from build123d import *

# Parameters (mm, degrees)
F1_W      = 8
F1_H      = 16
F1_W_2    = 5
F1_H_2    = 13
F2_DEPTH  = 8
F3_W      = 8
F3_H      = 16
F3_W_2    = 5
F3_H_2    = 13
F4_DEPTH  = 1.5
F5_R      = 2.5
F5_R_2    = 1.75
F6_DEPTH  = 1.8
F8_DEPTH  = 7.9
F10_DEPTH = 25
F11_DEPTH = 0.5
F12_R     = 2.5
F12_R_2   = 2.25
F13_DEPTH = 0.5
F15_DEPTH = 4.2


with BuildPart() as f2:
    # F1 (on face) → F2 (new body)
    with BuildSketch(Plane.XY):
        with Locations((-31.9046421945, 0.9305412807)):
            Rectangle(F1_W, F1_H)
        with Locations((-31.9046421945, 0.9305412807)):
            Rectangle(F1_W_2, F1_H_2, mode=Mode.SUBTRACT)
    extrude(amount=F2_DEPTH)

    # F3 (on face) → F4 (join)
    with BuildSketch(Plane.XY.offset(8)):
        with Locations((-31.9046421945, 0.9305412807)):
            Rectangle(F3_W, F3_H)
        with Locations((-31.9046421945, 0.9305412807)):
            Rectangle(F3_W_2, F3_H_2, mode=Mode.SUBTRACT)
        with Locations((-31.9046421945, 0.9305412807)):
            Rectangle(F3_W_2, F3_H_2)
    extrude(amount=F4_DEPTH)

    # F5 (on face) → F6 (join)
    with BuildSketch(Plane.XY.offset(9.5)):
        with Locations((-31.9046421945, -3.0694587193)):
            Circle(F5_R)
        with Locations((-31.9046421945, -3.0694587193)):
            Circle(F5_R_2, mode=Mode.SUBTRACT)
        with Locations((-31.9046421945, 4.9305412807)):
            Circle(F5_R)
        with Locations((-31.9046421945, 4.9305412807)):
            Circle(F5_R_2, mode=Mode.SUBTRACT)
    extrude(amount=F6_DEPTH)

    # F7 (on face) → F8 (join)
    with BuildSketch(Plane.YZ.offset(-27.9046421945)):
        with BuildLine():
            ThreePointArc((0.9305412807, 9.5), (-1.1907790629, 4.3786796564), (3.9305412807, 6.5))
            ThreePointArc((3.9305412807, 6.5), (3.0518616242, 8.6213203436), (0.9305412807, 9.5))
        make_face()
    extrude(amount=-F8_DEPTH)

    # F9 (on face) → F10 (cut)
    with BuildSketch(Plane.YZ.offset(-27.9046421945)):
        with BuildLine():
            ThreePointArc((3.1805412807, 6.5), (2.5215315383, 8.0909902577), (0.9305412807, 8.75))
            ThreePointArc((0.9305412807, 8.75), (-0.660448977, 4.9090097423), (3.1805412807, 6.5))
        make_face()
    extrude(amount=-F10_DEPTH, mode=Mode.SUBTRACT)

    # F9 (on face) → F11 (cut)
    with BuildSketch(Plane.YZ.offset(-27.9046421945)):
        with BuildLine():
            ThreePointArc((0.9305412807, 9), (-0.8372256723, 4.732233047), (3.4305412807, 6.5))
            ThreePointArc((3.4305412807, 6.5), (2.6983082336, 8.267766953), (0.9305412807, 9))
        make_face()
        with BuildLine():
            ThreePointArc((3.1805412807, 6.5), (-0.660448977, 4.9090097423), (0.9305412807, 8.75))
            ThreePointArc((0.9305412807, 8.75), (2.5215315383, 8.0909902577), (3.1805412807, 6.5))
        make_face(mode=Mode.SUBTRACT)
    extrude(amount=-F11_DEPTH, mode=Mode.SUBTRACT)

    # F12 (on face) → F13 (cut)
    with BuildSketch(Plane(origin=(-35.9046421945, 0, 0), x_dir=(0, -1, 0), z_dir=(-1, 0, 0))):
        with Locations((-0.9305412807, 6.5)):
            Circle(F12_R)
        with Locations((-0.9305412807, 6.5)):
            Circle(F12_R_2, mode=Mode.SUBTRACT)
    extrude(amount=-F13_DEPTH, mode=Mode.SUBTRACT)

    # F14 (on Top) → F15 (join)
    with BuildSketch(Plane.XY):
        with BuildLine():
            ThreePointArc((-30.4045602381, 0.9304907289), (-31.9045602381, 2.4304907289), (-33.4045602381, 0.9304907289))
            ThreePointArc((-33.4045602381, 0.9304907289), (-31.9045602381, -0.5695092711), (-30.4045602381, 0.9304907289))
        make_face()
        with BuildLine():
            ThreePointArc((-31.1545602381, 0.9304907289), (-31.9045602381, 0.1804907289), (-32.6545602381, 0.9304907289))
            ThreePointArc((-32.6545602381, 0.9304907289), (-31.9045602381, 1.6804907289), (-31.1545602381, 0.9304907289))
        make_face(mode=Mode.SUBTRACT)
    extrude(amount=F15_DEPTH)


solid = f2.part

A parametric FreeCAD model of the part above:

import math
import FreeCAD as App
import Part
import Sketcher
from FreeCAD import Vector


def add_polygon(sketch, points):
    """Adds a closed chain of lines whose ends are joined by coincident constraints."""
    first, n = sketch.GeometryCount, len(points)
    for a, b in zip(points, points[1:] + points[:1]):
        sketch.addGeometry(Part.LineSegment(App.Vector(*a, 0), App.Vector(*b, 0)), False)
    for i in range(n):
        sketch.addConstraint(Sketcher.Constraint("Coincident", first + i, 2, first + (i + 1) % n, 1))

doc = App.newDocument("Part")
body = doc.addObject("PartDesign::Body", "Body")

sketch1 = body.newObject("Sketcher::SketchObject", "Sketch")
sketch1.AttachmentSupport = (doc.getObject("XY_Plane"), [""])
sketch1.MapMode = "FlatFace"
add_polygon(sketch1, [(-35.9, 8.9), (-35.9, -7.1), (-27.9, -7.1), (-27.9, 8.9)])
add_polygon(sketch1, [(-29.4, -5.6), (-34.4, -5.6), (-34.4, 7.4), (-29.4, 7.4)])
sketch1.addConstraint([
    Sketcher.Constraint("Vertical", 0),
    Sketcher.Constraint("Horizontal", 1),
    Sketcher.Constraint("Vertical", 2),
    Sketcher.Constraint("Horizontal", 3),
    Sketcher.Constraint("Horizontal", 4),
    Sketcher.Constraint("Vertical", 5),
    Sketcher.Constraint("Horizontal", 6),
    Sketcher.Constraint("Vertical", 7),
    Sketcher.Constraint("DistanceX", 1, 1, 1, 2, 8.0),
    Sketcher.Constraint("DistanceX", 4, 2, 4, 1, 5.0),
    Sketcher.Constraint("DistanceY", 0, 2, 0, 1, 16.0),
    Sketcher.Constraint("DistanceY", 5, 1, 5, 2, 13.0),
    Sketcher.Constraint("DistanceX", 0, 2, 4, 2, 1.5),
    Sketcher.Constraint("DistanceY", 0, 2, 4, 2, 1.5),
    Sketcher.Constraint("DistanceY", 0, 2, -1, 1, 7.069459),
    Sketcher.Constraint("DistanceX", 0, 2, -1, 1, 35.904642),
])
pad1 = body.newObject("PartDesign::Pad", "Pad")
pad1.Profile = sketch1
pad1.Length = 8

sketch2 = body.newObject("Sketcher::SketchObject", "Sketch001")
sketch2.AttachmentSupport = (doc.getObject("XY_Plane"), [""])
sketch2.MapMode = "FlatFace"
sketch2.AttachmentOffset = App.Placement(Vector(0, 0, 8), App.Rotation())
add_polygon(sketch2, [(-36, 9), (-36, -7), (-28, -7), (-28, 9)])
sketch2.addConstraint([
    Sketcher.Constraint("Vertical", 0),
    Sketcher.Constraint("Horizontal", 1),
    Sketcher.Constraint("Vertical", 2),
    Sketcher.Constraint("Horizontal", 3),
    Sketcher.Constraint("DistanceX", 1, 1, 1, 2, 8.0),
    Sketcher.Constraint("DistanceY", 0, 2, 0, 1, 16.0),
    Sketcher.Constraint("DistanceY", 0, 2, -1, 1, 7.069459),
    Sketcher.Constraint("DistanceX", 0, 2, -1, 1, 35.904642),
])
pad2 = body.newObject("PartDesign::Pad", "Pad001")
pad2.Profile = sketch2
pad2.Length = 1.5

sketch3 = body.newObject("Sketcher::SketchObject", "Sketch002")
sketch3.AttachmentSupport = (doc.getObject("XY_Plane"), [""])
sketch3.MapMode = "FlatFace"
sketch3.AttachmentOffset = App.Placement(Vector(0, 0, 9.5), App.Rotation())
sketch3.addGeometry([
    Part.Circle(Vector(-31.9, -3.1, 0), Vector(0, 0, 1), 2.5),
    Part.Circle(Vector(-31.9, -3.1, 0), Vector(0, 0, 1), 1.8),
    Part.Circle(Vector(-31.9, 4.9, 0), Vector(0, 0, 1), 2.5),
    Part.Circle(Vector(-31.9, 4.9, 0), Vector(0, 0, 1), 1.8),
], False)
sketch3.addConstraint([
    Sketcher.Constraint("Coincident", 1, 3, 0, 3),
    Sketcher.Constraint("Coincident", 3, 3, 2, 3),
    Sketcher.Constraint("Equal", 0, 2),
    Sketcher.Constraint("Equal", 1, 3),
    Sketcher.Constraint("Vertical", 1, 3, 2, 3),
    Sketcher.Constraint("Diameter", 0, 5.0),
    Sketcher.Constraint("Diameter", 1, 3.5),
    Sketcher.Constraint("DistanceY", 0, 3, 2, 3, 8.0),
    Sketcher.Constraint("DistanceY", 0, 3, -1, 1, 3.069459),
    Sketcher.Constraint("DistanceX", 0, 3, -1, 1, 31.904642),
])
pad3 = body.newObject("PartDesign::Pad", "Pad002")
pad3.Profile = sketch3
pad3.Length = 1.8

sketch4 = body.newObject("Sketcher::SketchObject", "Sketch003")
sketch4.AttachmentSupport = (doc.getObject("YZ_Plane"), [""])
sketch4.MapMode = "FlatFace"
sketch4.AttachmentOffset = App.Placement(Vector(0, 0, -27.904642), App.Rotation())
sketch4.addGeometry([
    Part.ArcOfCircle(Part.Circle(Vector(0.9, 6.5, 0), Vector(0, 0, 1), 3), math.radians(90), math.radians(360)),
    Part.ArcOfCircle(Part.Circle(Vector(0.9, 6.5, 0), Vector(0, 0, 1), 3), math.radians(0), math.radians(90)),
], False)
sketch4.addConstraint([
    Sketcher.Constraint("Tangent", 0, 1, 1, 2),
    Sketcher.Constraint("Coincident", 1, 1, 0, 2),
    Sketcher.Constraint("Horizontal", 0, 3, 1, 1),
    Sketcher.Constraint("Vertical", 1, 3, 0, 1),
    Sketcher.Constraint("Radius", 0, 3.0),
    Sketcher.Constraint("DistanceY", -1, 1, 0, 3, 6.5),
    Sketcher.Constraint("DistanceX", -1, 1, 0, 3, 0.930541),
])
pad4 = body.newObject("PartDesign::Pad", "Pad003")
pad4.Profile = sketch4
pad4.Length = 7.9
pad4.Reversed = True

sketch5 = body.newObject("Sketcher::SketchObject", "Sketch004")
sketch5.AttachmentSupport = (doc.getObject("YZ_Plane"), [""])
sketch5.MapMode = "FlatFace"
sketch5.AttachmentOffset = App.Placement(Vector(0, 0, -27.904642), App.Rotation())
sketch5.addGeometry([
    Part.ArcOfCircle(Part.Circle(Vector(0.9, 6.5, 0), Vector(0, 0, 1), 2.2), math.radians(0), math.radians(90)),
    Part.ArcOfCircle(Part.Circle(Vector(0.9, 6.5, 0), Vector(0, 0, 1), 2.2), math.radians(90), math.radians(360)),
], False)
sketch5.addConstraint([
    Sketcher.Constraint("Tangent", 0, 1, 1, 2),
    Sketcher.Constraint("Coincident", 1, 1, 0, 2),
    Sketcher.Constraint("Horizontal", 1, 3, 0, 1),
    Sketcher.Constraint("Vertical", 0, 3, 1, 1),
    Sketcher.Constraint("Radius", 0, 2.25),
    Sketcher.Constraint("DistanceY", -1, 1, 0, 3, 6.5),
    Sketcher.Constraint("DistanceX", -1, 1, 0, 3, 0.930541),
])
pocket1 = body.newObject("PartDesign::Pocket", "Pocket")
pocket1.Profile = sketch5
pocket1.Length = 25

sketch6 = body.newObject("Sketcher::SketchObject", "Sketch005")
sketch6.AttachmentSupport = (doc.getObject("YZ_Plane"), [""])
sketch6.MapMode = "FlatFace"
sketch6.AttachmentOffset = App.Placement(Vector(0, 0, -27.904642), App.Rotation())
sketch6.addGeometry([
    Part.ArcOfCircle(Part.Circle(Vector(0.9, 6.5, 0), Vector(0, 0, 1), 2.5), math.radians(90), math.radians(360)),
    Part.ArcOfCircle(Part.Circle(Vector(0.9, 6.5, 0), Vector(0, 0, 1), 2.5), math.radians(0), math.radians(90)),
    Part.ArcOfCircle(Part.Circle(Vector(0.9, 6.5, 0), Vector(0, 0, 1), 2.2), math.radians(0), math.radians(90)),
    Part.ArcOfCircle(Part.Circle(Vector(0.9, 6.5, 0), Vector(0, 0, 1), 2.2), math.radians(90), math.radians(360)),
], False)
sketch6.addConstraint([
    Sketcher.Constraint("Tangent", 0, 1, 1, 2),
    Sketcher.Constraint("Coincident", 1, 1, 0, 2),
    Sketcher.Constraint("Tangent", 2, 1, 3, 2),
    Sketcher.Constraint("Coincident", 3, 1, 2, 2),
    Sketcher.Constraint("Coincident", 2, 3, 0, 3),
    Sketcher.Constraint("Horizontal", 3, 3, 1, 1),
    Sketcher.Constraint("Horizontal", 1, 1, 2, 1),
    Sketcher.Constraint("Vertical", 3, 3, 0, 1),
    Sketcher.Constraint("Vertical", 0, 1, 3, 1),
    Sketcher.Constraint("Radius", 0, 2.5),
    Sketcher.Constraint("Radius", 2, 2.25),
    Sketcher.Constraint("DistanceY", -1, 1, 0, 1, 9.0),
    Sketcher.Constraint("DistanceX", -1, 1, 0, 3, 0.930541),
])
pocket2 = body.newObject("PartDesign::Pocket", "Pocket001")
pocket2.Profile = sketch6
pocket2.Length = 0.5

sketch7 = body.newObject("Sketcher::SketchObject", "Sketch006")
sketch7.AttachmentSupport = (doc.getObject("YZ_Plane"), [""])
sketch7.MapMode = "FlatFace"
sketch7.AttachmentOffset = App.Placement(Vector(0, 0, -35.904642), App.Rotation())
sketch7.addGeometry([
    Part.Circle(Vector(0.9, 6.5, 0), Vector(0, 0, 1), 2.5),
    Part.Circle(Vector(0.9, 6.5, 0), Vector(0, 0, 1), 2.2),
], False)
sketch7.addConstraint([
    Sketcher.Constraint("Coincident", 1, 3, 0, 3),
    Sketcher.Constraint("Diameter", 0, 5.0),
    Sketcher.Constraint("Diameter", 1, 4.5),
    Sketcher.Constraint("DistanceY", -1, 1, 0, 3, 6.5),
    Sketcher.Constraint("DistanceX", -1, 1, 0, 3, 0.930541),
])
pocket3 = body.newObject("PartDesign::Pocket", "Pocket002")
pocket3.Profile = sketch7
pocket3.Length = 0.5
pocket3.Reversed = True

sketch8 = body.newObject("Sketcher::SketchObject", "Sketch007")
sketch8.AttachmentSupport = (doc.getObject("XY_Plane"), [""])
sketch8.MapMode = "FlatFace"
sketch8.addGeometry([
    Part.Circle(Vector(-31.9, 0.9, 0), Vector(0, 0, 1), 1.5),
    Part.Circle(Vector(-31.9, 0.9, 0), Vector(0, 0, 1), 0.8),
], False)
sketch8.addConstraint([
    Sketcher.Constraint("Coincident", 1, 3, 0, 3),
    Sketcher.Constraint("Diameter", 0, 3.0),
    Sketcher.Constraint("Diameter", 1, 1.5),
    Sketcher.Constraint("DistanceX", 0, 3, -1, 1, 31.90456),
    Sketcher.Constraint("DistanceY", -1, 1, 0, 3, 0.930491),
])
pad5 = body.newObject("PartDesign::Pad", "Pad004")
pad5.Profile = sketch8
pad5.Length = 4.2

doc.recompute()
